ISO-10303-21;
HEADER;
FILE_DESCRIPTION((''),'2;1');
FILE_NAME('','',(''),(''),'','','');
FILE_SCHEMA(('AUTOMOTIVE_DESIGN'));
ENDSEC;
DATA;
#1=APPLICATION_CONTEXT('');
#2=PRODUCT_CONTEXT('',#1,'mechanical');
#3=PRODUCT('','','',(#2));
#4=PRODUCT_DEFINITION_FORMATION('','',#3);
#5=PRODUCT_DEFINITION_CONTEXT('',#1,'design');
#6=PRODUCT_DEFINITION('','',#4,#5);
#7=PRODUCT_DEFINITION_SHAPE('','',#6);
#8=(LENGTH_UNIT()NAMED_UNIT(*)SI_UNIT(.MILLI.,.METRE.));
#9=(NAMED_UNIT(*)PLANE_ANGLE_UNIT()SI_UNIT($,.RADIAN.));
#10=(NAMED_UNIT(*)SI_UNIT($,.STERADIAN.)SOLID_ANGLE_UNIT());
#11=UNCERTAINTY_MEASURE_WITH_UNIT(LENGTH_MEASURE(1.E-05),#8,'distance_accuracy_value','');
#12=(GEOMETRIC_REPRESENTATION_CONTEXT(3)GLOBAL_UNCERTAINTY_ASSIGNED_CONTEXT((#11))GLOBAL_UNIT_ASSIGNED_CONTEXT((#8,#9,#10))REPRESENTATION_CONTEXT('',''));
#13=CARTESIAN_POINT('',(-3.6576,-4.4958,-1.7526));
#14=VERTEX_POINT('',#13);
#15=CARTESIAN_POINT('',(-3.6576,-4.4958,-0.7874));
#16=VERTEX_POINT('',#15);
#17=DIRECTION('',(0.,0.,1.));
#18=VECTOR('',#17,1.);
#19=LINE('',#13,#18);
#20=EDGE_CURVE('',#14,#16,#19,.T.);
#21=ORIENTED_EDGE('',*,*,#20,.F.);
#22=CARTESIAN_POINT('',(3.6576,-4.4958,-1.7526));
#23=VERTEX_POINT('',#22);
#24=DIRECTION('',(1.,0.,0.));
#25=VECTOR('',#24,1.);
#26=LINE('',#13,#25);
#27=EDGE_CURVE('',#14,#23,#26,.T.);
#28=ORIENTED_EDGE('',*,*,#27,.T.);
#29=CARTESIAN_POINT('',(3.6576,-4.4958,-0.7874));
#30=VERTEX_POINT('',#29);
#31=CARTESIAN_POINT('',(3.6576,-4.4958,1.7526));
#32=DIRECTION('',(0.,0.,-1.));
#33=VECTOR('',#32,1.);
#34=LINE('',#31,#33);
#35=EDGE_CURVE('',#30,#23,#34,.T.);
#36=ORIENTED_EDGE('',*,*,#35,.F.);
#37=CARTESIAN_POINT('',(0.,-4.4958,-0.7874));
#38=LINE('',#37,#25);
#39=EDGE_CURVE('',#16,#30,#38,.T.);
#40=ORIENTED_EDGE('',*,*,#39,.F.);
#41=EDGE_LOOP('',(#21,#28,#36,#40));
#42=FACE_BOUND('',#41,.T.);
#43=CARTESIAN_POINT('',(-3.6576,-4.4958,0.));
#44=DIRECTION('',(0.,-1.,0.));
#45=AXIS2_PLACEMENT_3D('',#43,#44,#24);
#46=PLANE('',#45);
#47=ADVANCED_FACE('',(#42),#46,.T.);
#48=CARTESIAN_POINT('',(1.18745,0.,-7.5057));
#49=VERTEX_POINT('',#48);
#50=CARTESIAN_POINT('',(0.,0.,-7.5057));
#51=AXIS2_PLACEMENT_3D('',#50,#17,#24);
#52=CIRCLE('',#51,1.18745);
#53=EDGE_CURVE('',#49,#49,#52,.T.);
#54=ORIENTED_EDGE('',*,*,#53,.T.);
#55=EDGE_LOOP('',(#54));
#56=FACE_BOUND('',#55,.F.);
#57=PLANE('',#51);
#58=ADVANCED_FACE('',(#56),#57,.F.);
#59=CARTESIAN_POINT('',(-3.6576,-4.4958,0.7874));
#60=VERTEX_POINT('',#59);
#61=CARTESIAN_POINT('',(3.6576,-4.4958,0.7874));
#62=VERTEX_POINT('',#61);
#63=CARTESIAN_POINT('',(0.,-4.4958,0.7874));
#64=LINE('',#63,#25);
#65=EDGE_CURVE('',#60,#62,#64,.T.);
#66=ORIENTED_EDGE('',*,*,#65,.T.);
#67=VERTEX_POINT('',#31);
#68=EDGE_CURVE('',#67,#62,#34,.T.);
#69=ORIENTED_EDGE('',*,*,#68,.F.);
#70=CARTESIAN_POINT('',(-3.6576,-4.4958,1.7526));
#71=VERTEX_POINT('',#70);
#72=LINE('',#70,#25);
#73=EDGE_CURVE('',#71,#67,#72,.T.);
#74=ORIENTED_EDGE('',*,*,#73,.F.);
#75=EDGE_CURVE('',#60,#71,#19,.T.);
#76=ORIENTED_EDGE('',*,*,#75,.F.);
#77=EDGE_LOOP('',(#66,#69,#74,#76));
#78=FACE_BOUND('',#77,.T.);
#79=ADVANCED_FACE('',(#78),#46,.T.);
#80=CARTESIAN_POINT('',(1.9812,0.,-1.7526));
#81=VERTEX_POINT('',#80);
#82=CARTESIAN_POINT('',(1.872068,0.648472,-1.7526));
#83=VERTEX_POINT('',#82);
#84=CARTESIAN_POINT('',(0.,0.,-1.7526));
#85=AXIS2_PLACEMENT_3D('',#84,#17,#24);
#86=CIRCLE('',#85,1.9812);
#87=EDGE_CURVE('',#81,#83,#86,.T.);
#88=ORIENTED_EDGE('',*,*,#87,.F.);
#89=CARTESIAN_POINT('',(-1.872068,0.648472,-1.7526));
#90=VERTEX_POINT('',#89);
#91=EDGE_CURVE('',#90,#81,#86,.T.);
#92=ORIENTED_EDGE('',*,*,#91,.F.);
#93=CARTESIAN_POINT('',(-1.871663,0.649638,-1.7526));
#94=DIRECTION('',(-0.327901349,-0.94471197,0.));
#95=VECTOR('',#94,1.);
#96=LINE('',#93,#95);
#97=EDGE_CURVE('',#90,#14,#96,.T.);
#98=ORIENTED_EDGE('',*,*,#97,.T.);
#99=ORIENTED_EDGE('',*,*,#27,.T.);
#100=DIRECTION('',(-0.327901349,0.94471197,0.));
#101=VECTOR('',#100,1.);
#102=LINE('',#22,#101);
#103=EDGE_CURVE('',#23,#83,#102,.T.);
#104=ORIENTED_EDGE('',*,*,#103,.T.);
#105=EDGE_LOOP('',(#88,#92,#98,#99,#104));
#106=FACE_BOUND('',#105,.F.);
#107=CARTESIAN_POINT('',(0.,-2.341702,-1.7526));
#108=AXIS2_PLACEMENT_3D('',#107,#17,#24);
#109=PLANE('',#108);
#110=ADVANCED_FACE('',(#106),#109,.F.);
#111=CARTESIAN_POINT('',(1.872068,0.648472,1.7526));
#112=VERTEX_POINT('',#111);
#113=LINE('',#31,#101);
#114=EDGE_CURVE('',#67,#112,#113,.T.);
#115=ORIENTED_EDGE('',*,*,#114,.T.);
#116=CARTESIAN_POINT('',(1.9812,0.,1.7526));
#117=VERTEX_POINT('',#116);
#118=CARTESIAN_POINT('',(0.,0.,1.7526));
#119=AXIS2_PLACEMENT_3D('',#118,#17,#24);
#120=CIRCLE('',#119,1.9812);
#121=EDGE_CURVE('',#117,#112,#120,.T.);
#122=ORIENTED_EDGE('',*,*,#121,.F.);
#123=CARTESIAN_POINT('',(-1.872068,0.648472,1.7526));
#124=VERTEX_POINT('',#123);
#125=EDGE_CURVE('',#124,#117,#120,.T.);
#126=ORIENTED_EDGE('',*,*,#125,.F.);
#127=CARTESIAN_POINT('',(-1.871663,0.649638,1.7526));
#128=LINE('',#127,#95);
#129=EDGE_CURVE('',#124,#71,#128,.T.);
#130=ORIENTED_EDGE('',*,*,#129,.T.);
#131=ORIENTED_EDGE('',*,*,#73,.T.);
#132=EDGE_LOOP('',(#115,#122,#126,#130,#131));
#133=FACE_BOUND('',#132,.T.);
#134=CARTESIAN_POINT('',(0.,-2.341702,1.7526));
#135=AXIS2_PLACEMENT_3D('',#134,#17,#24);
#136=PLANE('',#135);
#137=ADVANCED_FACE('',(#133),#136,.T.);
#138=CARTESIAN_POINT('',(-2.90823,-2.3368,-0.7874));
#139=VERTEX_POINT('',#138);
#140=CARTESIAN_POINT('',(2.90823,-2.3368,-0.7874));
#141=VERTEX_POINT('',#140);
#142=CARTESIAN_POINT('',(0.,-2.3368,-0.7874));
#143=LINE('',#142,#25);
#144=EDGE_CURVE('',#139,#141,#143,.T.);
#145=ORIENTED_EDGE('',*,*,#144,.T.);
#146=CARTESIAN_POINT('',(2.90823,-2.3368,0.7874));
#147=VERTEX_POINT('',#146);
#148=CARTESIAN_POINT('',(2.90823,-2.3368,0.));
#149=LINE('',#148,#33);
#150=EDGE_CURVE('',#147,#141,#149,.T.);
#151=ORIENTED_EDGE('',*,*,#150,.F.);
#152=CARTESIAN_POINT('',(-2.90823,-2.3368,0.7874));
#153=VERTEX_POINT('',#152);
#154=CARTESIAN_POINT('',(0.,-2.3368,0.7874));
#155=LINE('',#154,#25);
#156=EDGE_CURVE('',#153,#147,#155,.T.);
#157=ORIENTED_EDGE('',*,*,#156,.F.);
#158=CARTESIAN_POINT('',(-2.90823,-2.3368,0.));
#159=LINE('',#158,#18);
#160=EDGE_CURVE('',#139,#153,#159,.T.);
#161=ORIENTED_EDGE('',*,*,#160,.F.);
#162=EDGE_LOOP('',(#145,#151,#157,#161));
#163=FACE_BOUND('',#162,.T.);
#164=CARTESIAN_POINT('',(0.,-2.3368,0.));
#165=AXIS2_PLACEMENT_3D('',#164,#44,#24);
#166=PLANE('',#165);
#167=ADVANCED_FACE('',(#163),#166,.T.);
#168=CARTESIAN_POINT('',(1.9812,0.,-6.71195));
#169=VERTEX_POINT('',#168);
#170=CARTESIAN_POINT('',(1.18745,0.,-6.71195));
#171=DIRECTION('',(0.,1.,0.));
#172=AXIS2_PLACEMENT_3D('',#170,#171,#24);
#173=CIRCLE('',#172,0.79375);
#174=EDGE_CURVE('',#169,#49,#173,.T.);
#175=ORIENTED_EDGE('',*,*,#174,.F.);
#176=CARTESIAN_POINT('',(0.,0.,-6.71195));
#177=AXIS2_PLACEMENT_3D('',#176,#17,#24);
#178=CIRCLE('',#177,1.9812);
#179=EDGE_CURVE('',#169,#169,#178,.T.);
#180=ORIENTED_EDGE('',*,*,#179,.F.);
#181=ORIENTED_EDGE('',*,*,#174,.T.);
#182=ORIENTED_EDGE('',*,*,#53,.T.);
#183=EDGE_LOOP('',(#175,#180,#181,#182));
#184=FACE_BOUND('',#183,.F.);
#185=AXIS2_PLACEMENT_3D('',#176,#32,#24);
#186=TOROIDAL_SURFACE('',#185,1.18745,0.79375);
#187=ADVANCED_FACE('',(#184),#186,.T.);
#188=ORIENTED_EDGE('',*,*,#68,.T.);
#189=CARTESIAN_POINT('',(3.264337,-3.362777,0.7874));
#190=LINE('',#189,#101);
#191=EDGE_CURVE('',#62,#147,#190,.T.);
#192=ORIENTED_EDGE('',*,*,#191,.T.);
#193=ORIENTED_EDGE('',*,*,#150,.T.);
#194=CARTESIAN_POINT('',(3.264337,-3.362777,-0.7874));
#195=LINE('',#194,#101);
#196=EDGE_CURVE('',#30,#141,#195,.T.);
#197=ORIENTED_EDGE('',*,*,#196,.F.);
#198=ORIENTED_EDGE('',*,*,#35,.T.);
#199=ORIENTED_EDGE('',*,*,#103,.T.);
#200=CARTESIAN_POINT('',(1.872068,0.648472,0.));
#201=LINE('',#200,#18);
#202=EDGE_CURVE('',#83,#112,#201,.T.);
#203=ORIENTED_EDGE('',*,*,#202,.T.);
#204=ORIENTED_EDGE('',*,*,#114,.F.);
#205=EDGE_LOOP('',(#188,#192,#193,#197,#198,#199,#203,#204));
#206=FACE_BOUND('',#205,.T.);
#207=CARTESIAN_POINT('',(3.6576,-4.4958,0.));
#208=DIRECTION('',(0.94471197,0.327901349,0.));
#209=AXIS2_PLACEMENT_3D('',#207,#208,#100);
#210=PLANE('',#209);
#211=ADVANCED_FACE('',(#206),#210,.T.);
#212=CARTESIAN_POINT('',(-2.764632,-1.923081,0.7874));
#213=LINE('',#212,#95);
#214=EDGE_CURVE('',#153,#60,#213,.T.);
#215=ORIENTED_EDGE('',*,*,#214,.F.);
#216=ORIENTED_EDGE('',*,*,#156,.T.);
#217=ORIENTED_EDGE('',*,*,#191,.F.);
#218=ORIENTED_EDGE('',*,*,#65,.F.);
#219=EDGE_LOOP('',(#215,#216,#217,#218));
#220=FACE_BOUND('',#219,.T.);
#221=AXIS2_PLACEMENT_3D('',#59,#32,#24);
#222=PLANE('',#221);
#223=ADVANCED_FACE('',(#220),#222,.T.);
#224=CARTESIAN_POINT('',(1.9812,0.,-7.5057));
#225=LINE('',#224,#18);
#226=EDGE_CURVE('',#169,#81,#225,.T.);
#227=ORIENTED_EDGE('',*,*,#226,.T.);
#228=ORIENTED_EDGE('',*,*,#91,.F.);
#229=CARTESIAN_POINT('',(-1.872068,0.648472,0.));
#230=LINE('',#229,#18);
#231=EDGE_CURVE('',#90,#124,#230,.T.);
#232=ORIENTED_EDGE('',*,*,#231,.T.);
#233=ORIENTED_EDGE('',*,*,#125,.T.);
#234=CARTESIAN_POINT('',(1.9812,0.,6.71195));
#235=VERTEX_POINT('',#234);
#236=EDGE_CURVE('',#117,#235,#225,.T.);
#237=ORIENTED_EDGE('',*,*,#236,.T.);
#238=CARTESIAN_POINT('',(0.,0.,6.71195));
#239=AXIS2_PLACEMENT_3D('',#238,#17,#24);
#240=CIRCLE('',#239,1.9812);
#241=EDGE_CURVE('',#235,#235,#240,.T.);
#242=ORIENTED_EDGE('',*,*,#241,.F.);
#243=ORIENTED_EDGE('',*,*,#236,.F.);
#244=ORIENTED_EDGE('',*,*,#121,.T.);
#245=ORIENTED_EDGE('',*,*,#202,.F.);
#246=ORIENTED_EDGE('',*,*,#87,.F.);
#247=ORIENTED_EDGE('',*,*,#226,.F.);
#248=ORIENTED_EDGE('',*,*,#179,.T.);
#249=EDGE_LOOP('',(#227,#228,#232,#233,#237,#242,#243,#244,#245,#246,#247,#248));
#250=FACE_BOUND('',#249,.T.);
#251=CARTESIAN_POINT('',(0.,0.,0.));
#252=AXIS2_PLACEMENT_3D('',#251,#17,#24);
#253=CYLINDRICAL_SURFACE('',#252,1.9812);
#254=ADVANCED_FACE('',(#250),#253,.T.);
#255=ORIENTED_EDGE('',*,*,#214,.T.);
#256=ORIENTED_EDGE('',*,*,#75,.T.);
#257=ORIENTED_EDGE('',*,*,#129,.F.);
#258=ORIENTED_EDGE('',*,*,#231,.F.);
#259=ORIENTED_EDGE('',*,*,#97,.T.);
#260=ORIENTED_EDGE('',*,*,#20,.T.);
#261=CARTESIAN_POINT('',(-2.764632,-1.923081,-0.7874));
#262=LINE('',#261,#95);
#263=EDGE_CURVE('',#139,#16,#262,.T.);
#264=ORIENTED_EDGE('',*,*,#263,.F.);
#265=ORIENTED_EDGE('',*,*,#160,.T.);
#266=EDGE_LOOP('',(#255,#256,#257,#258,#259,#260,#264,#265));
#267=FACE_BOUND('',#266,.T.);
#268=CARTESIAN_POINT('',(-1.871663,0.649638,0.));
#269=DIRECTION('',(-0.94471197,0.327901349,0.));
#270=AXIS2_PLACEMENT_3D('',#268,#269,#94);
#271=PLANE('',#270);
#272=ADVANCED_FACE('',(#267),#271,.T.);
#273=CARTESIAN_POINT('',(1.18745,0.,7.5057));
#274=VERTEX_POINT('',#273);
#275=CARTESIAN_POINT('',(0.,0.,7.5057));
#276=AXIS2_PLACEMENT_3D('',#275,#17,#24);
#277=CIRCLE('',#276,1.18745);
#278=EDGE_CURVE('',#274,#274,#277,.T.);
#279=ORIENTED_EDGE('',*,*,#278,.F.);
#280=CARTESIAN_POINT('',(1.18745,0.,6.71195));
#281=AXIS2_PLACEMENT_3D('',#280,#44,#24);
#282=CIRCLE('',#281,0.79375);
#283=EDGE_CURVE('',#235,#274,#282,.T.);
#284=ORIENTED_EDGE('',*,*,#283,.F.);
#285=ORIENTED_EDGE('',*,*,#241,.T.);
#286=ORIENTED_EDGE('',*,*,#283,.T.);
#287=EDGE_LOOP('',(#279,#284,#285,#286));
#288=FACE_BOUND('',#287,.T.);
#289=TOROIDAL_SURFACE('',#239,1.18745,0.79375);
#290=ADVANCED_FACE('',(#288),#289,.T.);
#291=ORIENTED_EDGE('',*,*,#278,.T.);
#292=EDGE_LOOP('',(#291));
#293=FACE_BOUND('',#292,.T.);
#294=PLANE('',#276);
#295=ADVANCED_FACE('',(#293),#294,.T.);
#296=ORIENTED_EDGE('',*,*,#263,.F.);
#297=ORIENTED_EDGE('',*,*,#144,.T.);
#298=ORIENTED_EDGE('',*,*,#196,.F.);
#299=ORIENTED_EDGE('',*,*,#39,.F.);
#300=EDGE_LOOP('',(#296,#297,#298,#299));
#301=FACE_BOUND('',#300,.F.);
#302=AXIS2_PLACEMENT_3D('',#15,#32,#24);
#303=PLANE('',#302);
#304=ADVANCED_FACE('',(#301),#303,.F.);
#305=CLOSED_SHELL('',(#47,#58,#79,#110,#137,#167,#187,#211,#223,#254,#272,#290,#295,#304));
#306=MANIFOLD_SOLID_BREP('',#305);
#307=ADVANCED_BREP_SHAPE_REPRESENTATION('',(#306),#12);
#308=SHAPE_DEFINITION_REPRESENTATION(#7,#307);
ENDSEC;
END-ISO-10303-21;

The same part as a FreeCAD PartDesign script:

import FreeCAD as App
import Part
import Sketcher

V = App.Vector
Q = App.Units.Quantity


def edges_at(feature, points):
    """Names of the edges that pass closest to the given points."""
    edges = feature.Shape.Edges
    near = lambda p: min(range(len(edges)), key=lambda i: edges[i].distToShape(Part.Vertex(*p))[0])
    return sorted({f"Edge{near(p) + 1}" for p in points})

doc = App.newDocument("Part")
body = doc.addObject("PartDesign::Body", "Body")

# Sketch on XY plane
sketch1 = body.newObject("Sketcher::SketchObject", "Sketch")
sketch1.AttachmentSupport = (doc.getObject("XY_Plane"), [""])
sketch1.MapMode = "FlatFace"
sketch1.addGeometry(Part.Circle(V(0, 0, 0), V(0, 0, 1), 1.9812), False)
sketch1.addConstraint([
    Sketcher.Constraint("Coincident", 0, 3, -1, 1),
    Sketcher.Constraint("Diameter", 0, Q("0.156 in")),
])
pad1 = body.newObject("PartDesign::Pad", "Pad")
pad1.Profile = sketch1
pad1.Length = Q("0.591 in")
pad1.Midplane = True

# Sketch on XY plane
sketch2 = body.newObject("Sketcher::SketchObject", "Sketch001")
sketch2.AttachmentSupport = (doc.getObject("XY_Plane"), [""])
sketch2.MapMode = "FlatFace"
sketch2.addGeometry([
    Part.LineSegment(V(1.871663, 0.649638, 0), V(-1.871663, 0.649638, 0)),
    Part.LineSegment(V(-1.871663, 0.649638, 0), V(-3.6576, -4.4958, 0)),
    Part.LineSegment(V(-3.6576, -4.4958, 0), V(3.6576, -4.4958, 0)),
    Part.LineSegment(V(3.6576, -4.4958, 0), V(1.871663, 0.649638, 0)),
], False)
sketch2.addConstraint([
    Sketcher.Constraint("Coincident", 0, 2, 1, 1),
    Sketcher.Constraint("Coincident", 1, 2, 2, 1),
    Sketcher.Constraint("Coincident", 2, 2, 3, 1),
    Sketcher.Constraint("Coincident", 3, 2, 0, 1),
    Sketcher.Constraint("Horizontal", 0),
    Sketcher.Constraint("Horizontal", 2),
    Sketcher.Constraint("Equal", 1, 3),
    Sketcher.Constraint("DistanceX", 2, 1, 2, 2, Q("0.288 in")),
    Sketcher.Constraint("DistanceX", 1, 2, -1, 1, Q("0.144 in")),
    Sketcher.Constraint("DistanceY", 1, 2, -1, 1, Q("0.177 in")),
    Sketcher.Constraint("Distance", 1, 5.446568),
    Sketcher.Constraint("DistanceX", 0, 2, 0, 1, 3.743326),
])
pad2 = body.newObject("PartDesign::Pad", "Pad001")
pad2.Profile = sketch2
pad2.Length = Q("0.138 in")
pad2.Midplane = True

# Sketch on XZ plane
sketch3 = body.newObject("Sketcher::SketchObject", "Sketch002")
sketch3.AttachmentSupport = (doc.getObject("XZ_Plane"), [""])
sketch3.MapMode = "FlatFace"
sketch3.AttachmentOffset = App.Placement(V(0, 0, 0.177 * 25.4), App.Rotation())
sketch3.addGeometry([
    Part.LineSegment(V(-3.6576, 0.7874, 0), V(-3.6576, -0.7874, 0)),
    Part.LineSegment(V(-3.6576, -0.7874, 0), V(3.6576, -0.7874, 0)),
    Part.LineSegment(V(3.6576, -0.7874, 0), V(3.6576, 0.7874, 0)),
    Part.LineSegment(V(3.6576, 0.7874, 0), V(-3.6576, 0.7874, 0)),
], False)
sketch3.addConstraint([
    Sketcher.Constraint("Coincident", 0, 2, 1, 1),
    Sketcher.Constraint("Coincident", 1, 2, 2, 1),
    Sketcher.Constraint("Coincident", 2, 2, 3, 1),
    Sketcher.Constraint("Coincident", 3, 2, 0, 1),
    Sketcher.Constraint("Vertical", 0),
    Sketcher.Constraint("Horizontal", 1),
    Sketcher.Constraint("Vertical", 2),
    Sketcher.Constraint("Horizontal", 3),
    Sketcher.Constraint("Symmetric", 0, 2, 2, 2, -1, 1),
    Sketcher.Constraint("DistanceX", 1, 1, 1, 2, Q("0.288 in")),
    Sketcher.Constraint("DistanceY", 0, 2, 0, 1, Q("0.062 in")),
])
pocket1 = body.newObject("PartDesign::Pocket", "Pocket")
pocket1.Profile = sketch3
pocket1.Length = Q("0.085 in")
doc.recompute()

fillet = body.newObject("PartDesign::Fillet", "Fillet")
fillet.Base = (pocket1, edges_at(pocket1, [(-1.981, 0, 7.506), (-1.981, 0, -7.506)]))
fillet.Radius = Q("0.03125 in")

doc.recompute()
